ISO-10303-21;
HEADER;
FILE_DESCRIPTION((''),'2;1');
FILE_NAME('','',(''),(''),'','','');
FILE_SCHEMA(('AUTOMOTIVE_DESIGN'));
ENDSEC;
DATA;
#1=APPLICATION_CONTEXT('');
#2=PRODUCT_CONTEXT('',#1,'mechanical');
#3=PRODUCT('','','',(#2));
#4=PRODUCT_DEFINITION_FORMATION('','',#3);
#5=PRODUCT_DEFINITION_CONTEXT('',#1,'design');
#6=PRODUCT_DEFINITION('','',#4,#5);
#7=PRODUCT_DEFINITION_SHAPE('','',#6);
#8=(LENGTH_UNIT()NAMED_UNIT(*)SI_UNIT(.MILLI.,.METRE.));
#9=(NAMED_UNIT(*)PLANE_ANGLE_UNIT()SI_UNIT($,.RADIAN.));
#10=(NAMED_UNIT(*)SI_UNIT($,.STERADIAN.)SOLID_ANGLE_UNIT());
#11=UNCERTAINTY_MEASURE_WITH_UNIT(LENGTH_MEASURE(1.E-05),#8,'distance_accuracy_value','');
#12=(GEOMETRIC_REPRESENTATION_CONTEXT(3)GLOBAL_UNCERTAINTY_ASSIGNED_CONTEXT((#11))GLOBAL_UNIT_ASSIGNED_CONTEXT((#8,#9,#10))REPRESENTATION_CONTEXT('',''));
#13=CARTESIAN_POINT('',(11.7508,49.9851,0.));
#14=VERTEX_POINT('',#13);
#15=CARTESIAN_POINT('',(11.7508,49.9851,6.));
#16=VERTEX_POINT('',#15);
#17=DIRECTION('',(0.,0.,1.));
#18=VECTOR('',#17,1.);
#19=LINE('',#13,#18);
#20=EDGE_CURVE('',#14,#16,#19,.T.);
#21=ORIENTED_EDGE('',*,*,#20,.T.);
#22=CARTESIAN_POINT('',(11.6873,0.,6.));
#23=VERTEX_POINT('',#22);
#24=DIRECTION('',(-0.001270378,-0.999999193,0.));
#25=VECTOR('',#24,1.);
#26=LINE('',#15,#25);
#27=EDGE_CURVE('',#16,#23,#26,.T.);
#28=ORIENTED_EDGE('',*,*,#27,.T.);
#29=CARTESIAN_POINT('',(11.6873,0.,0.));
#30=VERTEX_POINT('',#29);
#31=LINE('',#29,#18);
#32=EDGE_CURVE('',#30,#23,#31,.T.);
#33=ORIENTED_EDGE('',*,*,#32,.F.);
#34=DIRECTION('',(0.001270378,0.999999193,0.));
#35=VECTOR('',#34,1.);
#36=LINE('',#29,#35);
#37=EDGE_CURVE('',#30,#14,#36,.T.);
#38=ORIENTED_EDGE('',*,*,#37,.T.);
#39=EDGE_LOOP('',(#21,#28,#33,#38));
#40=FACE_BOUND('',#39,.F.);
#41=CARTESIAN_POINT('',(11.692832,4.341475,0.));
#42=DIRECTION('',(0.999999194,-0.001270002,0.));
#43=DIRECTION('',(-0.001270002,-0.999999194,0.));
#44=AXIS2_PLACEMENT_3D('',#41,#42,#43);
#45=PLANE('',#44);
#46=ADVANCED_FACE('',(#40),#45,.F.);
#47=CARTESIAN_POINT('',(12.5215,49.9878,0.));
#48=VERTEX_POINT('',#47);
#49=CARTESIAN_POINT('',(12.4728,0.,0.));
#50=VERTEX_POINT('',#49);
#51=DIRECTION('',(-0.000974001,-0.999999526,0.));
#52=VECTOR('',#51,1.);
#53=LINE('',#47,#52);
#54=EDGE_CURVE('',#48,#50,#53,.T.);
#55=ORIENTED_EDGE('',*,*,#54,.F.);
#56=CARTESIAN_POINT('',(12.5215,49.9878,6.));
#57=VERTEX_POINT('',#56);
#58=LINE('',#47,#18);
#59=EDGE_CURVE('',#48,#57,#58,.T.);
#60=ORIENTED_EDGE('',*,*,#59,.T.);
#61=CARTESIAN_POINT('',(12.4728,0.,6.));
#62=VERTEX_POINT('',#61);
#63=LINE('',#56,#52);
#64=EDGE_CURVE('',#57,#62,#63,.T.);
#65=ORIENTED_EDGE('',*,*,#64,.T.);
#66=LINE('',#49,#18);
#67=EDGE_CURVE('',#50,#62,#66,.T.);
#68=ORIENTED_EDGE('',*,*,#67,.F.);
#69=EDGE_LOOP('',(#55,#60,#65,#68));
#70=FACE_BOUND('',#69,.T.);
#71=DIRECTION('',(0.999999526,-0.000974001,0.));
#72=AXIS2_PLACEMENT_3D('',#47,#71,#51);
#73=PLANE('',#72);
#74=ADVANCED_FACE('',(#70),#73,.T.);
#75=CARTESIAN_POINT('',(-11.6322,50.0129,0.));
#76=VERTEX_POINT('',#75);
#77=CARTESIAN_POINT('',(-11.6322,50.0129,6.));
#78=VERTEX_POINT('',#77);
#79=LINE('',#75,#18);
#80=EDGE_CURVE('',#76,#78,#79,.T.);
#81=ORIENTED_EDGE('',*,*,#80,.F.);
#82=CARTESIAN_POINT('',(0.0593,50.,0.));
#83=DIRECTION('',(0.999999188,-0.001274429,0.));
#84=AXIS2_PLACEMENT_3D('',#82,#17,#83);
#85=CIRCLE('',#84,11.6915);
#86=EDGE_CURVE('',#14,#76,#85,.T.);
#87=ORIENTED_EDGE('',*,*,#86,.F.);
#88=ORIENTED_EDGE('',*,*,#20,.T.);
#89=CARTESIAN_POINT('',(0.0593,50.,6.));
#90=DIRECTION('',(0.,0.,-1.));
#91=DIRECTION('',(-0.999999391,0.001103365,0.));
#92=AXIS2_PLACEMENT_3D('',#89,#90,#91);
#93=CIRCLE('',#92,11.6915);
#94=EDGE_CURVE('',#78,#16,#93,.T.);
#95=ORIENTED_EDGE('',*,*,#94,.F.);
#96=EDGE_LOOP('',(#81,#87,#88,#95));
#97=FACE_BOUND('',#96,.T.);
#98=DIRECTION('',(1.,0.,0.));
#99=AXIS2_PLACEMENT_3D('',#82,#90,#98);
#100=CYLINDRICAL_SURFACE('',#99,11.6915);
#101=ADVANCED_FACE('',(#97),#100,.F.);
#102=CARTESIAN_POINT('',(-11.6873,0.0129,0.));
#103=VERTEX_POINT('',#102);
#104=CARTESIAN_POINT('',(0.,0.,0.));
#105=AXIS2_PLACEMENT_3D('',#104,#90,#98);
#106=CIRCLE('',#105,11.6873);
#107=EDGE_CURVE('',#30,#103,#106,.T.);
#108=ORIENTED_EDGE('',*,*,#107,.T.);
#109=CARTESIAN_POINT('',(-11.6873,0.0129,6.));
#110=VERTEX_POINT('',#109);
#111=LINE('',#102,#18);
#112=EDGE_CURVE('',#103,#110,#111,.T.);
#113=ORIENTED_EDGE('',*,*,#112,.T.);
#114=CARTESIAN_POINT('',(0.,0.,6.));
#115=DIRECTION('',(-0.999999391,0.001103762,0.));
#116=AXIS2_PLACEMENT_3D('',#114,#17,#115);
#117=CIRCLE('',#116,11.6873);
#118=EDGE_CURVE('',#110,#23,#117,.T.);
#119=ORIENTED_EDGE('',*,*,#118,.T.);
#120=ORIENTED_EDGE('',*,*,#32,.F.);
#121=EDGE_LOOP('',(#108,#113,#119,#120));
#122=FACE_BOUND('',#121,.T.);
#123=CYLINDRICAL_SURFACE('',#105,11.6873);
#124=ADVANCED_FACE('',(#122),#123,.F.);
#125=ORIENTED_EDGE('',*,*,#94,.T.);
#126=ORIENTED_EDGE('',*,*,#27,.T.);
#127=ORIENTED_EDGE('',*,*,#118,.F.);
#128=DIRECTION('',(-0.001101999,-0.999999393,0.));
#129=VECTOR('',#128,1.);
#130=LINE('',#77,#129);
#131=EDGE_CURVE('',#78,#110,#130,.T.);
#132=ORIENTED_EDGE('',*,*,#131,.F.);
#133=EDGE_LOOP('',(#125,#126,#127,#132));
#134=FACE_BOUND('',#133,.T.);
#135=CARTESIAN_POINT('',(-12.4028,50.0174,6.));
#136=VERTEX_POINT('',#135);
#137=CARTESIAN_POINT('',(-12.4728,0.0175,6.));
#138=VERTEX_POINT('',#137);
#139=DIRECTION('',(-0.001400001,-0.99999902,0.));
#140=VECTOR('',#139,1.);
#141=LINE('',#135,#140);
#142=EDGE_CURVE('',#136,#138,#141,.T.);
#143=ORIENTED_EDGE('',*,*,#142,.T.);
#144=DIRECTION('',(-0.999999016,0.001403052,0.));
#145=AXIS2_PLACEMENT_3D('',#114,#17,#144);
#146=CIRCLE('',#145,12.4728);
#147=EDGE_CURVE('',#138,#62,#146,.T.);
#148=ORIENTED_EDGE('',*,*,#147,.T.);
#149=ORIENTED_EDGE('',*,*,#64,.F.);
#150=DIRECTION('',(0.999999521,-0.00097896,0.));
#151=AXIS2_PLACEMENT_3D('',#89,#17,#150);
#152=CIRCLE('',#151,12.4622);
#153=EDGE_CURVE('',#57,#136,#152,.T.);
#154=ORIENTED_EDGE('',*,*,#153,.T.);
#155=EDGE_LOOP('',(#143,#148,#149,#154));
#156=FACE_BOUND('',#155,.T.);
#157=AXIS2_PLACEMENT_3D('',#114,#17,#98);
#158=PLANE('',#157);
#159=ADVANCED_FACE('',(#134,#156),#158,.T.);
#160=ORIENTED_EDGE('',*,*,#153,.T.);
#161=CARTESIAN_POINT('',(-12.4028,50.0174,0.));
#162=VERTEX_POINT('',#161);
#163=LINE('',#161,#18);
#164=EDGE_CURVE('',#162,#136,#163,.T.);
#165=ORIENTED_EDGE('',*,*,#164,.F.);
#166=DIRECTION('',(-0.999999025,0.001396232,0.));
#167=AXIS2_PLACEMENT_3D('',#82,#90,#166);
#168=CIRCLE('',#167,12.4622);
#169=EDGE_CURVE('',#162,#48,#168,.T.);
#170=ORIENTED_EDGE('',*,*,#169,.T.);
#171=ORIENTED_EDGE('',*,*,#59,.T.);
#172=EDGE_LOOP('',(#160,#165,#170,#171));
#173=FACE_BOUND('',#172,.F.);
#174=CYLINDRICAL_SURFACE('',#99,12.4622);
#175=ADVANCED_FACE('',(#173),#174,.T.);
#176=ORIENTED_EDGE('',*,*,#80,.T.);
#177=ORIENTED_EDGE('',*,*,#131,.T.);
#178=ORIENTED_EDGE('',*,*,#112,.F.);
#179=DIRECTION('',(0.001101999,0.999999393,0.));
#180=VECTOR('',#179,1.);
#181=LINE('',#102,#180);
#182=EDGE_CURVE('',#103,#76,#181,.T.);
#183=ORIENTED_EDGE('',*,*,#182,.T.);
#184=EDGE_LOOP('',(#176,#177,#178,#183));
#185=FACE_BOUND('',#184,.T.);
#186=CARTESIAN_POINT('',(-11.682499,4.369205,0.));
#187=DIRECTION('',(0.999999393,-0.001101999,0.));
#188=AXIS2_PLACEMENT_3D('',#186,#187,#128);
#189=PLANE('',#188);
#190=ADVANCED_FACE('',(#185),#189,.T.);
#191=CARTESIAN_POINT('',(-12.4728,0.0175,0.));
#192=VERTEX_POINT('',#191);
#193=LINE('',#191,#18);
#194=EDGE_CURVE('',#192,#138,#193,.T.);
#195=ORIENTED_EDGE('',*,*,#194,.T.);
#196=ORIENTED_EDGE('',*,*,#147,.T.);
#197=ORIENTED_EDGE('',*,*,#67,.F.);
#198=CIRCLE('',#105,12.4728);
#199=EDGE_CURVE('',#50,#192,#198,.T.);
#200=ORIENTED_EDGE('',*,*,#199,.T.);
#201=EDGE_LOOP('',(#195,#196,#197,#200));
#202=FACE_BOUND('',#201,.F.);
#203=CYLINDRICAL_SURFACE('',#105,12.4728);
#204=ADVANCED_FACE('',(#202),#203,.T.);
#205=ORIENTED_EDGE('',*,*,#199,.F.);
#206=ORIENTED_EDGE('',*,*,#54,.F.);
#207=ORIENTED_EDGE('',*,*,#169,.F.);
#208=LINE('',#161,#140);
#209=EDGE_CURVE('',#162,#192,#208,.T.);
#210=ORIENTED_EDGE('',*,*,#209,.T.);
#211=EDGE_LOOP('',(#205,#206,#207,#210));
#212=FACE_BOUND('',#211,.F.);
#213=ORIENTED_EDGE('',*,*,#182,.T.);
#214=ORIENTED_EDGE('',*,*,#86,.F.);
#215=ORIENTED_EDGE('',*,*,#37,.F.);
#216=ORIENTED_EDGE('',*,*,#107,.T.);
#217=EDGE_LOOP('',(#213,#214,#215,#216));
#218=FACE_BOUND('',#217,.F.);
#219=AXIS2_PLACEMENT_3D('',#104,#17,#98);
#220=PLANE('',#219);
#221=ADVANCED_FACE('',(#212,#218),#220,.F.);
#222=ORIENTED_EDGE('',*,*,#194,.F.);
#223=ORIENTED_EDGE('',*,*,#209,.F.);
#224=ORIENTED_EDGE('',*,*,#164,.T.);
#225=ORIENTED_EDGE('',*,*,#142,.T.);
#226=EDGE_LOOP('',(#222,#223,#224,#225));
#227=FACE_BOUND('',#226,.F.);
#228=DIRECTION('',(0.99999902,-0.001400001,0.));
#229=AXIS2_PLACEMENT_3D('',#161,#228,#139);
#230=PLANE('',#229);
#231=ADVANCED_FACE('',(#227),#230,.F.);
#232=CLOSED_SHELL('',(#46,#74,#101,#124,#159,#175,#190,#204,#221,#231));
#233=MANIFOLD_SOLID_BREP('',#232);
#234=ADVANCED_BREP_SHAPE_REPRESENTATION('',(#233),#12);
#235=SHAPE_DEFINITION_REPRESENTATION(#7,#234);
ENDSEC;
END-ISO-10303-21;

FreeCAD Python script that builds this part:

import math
import FreeCAD as App
import Part
import Sketcher
Q = App.Units.Quantity

doc = App.newDocument("Part")
params = doc.addObject("Spreadsheet::Sheet", "Params")
for row, (alias, value) in enumerate([
    ("sketch1_length", "50 mm"),
    ("sketch1_length2", "50 mm"),
    ("pad1_length", "6 mm"),
], start=1):
    params.set(f"A{row}", alias)
    params.set(f"B{row}", "=" + value)
    params.setAlias(f"B{row}", alias)

body = doc.addObject("PartDesign::Body", "Body")

# Sketch on XY plane
sketch1 = body.newObject("Sketcher::SketchObject", "Sketch")
sketch1.AttachmentSupport = (doc.getObject("XY_Plane"), [""])
sketch1.MapMode = "FlatFace"
sketch1.addGeometry(Part.LineSegment(App.Vector(12.472812, 0, 0), App.Vector(12.5215, 49.9878, 0)), False)
sketch1.addGeometry(Part.ArcOfCircle(Part.Circle(App.Vector(0.0593, 50, 0), App.Vector(0, 0, 1), 12.4622), math.radians(-0.05609), math.radians(179.920002)), False)
sketch1.addGeometry(Part.LineSegment(App.Vector(-12.4028, 50.0174, 0), App.Vector(-12.4728, 0.0175, 0)), False)
sketch1.addGeometry(Part.ArcOfCircle(Part.Circle(App.Vector(0, 0, 0), App.Vector(0, 0, 1), 12.4728), math.radians(179.919611), math.radians(360)), False)
sketch1.addGeometry(Part.LineSegment(App.Vector(-11.6873, 0.0129, 0), App.Vector(-11.6322, 50.0129, 0)), False)
sketch1.addGeometry(Part.ArcOfCircle(Part.Circle(App.Vector(0.0593, 50, 0), App.Vector(0, 0, 1), 11.6915), math.radians(-0.073019), math.radians(179.936782)), False)
sketch1.addGeometry(Part.LineSegment(App.Vector(11.7508, 49.9851, 0), App.Vector(11.6873, 0, 0)), False)
sketch1.addGeometry(Part.ArcOfCircle(Part.Circle(App.Vector(0, 0, 0), App.Vector(0, 0, 1), 11.6873), math.radians(179.936759), math.radians(360)), False)
sketch1.addConstraint(Sketcher.Constraint("Coincident", 0, 2, 1, 1))
sketch1.addConstraint(Sketcher.Constraint("Coincident", 1, 2, 2, 1))
sketch1.addConstraint(Sketcher.Constraint("Coincident", 2, 2, 3, 1))
sketch1.addConstraint(Sketcher.Constraint("Coincident", 3, 2, 0, 1))
sketch1.addConstraint(Sketcher.Constraint("Coincident", 4, 2, 5, 2))
sketch1.addConstraint(Sketcher.Constraint("Coincident", 5, 1, 6, 1))
sketch1.addConstraint(Sketcher.Constraint("Coincident", 6, 2, 7, 2))
sketch1.addConstraint(Sketcher.Constraint("Coincident", 7, 1, 4, 1))
sketch1.addConstraint(Sketcher.Constraint("Coincident", 3, 3, -1, 1))
sketch1.addConstraint(Sketcher.Constraint("Coincident", 7, 3, -1, 1))
sketch1.addConstraint(Sketcher.Constraint("Coincident", 5, 3, 1, 3))
sketch1.addConstraint(Sketcher.Constraint("PointOnObject", 3, 2, -1))
sketch1.addConstraint(Sketcher.Constraint("PointOnObject", 6, 2, -1))
sketch1.addConstraint(Sketcher.Constraint("Distance", 2, Q("50 mm")))
sketch1.addConstraint(Sketcher.Constraint("Distance", 4, Q("50 mm")))
sketch1.addConstraint(Sketcher.Constraint("DistanceY", -1, 1, 1, 3, Q("50 mm")))
sketch1.addConstraint(Sketcher.Constraint("Radius", 1, Q("12.4622 mm")))
sketch1.addConstraint(Sketcher.Constraint("Radius", 3, Q("12.4728 mm")))
sketch1.addConstraint(Sketcher.Constraint("Radius", 5, Q("11.6915 mm")))
sketch1.addConstraint(Sketcher.Constraint("Radius", 7, Q("11.6873 mm")))
sketch1.addConstraint(Sketcher.Constraint("DistanceX", 2, 2, 1, 2, Q("0.07 mm")))
sketch1.addConstraint(Sketcher.Constraint("DistanceY", -1, 1, 4, 2, Q("50.013 mm")))
sketch1.addConstraint(Sketcher.Constraint("DistanceY", -1, 1, 5, 1, Q("49.985 mm")))
sketch1.addConstraint(Sketcher.Constraint("DistanceY", 0, 2, 4, 2, Q("0.025 mm")))
sketch1.addConstraint(Sketcher.Constraint("DistanceY", -1, 1, 1, 2, Q("50.0174 mm")))
sketch1.setExpression("Constraints[13]", "Params.sketch1_length")
sketch1.setExpression("Constraints[14]", "Params.sketch1_length2")
pad1 = body.newObject("PartDesign::Pad", "Pad")
pad1.Profile = sketch1
pad1.setExpression("Length", "Params.pad1_length")

doc.recompute()
